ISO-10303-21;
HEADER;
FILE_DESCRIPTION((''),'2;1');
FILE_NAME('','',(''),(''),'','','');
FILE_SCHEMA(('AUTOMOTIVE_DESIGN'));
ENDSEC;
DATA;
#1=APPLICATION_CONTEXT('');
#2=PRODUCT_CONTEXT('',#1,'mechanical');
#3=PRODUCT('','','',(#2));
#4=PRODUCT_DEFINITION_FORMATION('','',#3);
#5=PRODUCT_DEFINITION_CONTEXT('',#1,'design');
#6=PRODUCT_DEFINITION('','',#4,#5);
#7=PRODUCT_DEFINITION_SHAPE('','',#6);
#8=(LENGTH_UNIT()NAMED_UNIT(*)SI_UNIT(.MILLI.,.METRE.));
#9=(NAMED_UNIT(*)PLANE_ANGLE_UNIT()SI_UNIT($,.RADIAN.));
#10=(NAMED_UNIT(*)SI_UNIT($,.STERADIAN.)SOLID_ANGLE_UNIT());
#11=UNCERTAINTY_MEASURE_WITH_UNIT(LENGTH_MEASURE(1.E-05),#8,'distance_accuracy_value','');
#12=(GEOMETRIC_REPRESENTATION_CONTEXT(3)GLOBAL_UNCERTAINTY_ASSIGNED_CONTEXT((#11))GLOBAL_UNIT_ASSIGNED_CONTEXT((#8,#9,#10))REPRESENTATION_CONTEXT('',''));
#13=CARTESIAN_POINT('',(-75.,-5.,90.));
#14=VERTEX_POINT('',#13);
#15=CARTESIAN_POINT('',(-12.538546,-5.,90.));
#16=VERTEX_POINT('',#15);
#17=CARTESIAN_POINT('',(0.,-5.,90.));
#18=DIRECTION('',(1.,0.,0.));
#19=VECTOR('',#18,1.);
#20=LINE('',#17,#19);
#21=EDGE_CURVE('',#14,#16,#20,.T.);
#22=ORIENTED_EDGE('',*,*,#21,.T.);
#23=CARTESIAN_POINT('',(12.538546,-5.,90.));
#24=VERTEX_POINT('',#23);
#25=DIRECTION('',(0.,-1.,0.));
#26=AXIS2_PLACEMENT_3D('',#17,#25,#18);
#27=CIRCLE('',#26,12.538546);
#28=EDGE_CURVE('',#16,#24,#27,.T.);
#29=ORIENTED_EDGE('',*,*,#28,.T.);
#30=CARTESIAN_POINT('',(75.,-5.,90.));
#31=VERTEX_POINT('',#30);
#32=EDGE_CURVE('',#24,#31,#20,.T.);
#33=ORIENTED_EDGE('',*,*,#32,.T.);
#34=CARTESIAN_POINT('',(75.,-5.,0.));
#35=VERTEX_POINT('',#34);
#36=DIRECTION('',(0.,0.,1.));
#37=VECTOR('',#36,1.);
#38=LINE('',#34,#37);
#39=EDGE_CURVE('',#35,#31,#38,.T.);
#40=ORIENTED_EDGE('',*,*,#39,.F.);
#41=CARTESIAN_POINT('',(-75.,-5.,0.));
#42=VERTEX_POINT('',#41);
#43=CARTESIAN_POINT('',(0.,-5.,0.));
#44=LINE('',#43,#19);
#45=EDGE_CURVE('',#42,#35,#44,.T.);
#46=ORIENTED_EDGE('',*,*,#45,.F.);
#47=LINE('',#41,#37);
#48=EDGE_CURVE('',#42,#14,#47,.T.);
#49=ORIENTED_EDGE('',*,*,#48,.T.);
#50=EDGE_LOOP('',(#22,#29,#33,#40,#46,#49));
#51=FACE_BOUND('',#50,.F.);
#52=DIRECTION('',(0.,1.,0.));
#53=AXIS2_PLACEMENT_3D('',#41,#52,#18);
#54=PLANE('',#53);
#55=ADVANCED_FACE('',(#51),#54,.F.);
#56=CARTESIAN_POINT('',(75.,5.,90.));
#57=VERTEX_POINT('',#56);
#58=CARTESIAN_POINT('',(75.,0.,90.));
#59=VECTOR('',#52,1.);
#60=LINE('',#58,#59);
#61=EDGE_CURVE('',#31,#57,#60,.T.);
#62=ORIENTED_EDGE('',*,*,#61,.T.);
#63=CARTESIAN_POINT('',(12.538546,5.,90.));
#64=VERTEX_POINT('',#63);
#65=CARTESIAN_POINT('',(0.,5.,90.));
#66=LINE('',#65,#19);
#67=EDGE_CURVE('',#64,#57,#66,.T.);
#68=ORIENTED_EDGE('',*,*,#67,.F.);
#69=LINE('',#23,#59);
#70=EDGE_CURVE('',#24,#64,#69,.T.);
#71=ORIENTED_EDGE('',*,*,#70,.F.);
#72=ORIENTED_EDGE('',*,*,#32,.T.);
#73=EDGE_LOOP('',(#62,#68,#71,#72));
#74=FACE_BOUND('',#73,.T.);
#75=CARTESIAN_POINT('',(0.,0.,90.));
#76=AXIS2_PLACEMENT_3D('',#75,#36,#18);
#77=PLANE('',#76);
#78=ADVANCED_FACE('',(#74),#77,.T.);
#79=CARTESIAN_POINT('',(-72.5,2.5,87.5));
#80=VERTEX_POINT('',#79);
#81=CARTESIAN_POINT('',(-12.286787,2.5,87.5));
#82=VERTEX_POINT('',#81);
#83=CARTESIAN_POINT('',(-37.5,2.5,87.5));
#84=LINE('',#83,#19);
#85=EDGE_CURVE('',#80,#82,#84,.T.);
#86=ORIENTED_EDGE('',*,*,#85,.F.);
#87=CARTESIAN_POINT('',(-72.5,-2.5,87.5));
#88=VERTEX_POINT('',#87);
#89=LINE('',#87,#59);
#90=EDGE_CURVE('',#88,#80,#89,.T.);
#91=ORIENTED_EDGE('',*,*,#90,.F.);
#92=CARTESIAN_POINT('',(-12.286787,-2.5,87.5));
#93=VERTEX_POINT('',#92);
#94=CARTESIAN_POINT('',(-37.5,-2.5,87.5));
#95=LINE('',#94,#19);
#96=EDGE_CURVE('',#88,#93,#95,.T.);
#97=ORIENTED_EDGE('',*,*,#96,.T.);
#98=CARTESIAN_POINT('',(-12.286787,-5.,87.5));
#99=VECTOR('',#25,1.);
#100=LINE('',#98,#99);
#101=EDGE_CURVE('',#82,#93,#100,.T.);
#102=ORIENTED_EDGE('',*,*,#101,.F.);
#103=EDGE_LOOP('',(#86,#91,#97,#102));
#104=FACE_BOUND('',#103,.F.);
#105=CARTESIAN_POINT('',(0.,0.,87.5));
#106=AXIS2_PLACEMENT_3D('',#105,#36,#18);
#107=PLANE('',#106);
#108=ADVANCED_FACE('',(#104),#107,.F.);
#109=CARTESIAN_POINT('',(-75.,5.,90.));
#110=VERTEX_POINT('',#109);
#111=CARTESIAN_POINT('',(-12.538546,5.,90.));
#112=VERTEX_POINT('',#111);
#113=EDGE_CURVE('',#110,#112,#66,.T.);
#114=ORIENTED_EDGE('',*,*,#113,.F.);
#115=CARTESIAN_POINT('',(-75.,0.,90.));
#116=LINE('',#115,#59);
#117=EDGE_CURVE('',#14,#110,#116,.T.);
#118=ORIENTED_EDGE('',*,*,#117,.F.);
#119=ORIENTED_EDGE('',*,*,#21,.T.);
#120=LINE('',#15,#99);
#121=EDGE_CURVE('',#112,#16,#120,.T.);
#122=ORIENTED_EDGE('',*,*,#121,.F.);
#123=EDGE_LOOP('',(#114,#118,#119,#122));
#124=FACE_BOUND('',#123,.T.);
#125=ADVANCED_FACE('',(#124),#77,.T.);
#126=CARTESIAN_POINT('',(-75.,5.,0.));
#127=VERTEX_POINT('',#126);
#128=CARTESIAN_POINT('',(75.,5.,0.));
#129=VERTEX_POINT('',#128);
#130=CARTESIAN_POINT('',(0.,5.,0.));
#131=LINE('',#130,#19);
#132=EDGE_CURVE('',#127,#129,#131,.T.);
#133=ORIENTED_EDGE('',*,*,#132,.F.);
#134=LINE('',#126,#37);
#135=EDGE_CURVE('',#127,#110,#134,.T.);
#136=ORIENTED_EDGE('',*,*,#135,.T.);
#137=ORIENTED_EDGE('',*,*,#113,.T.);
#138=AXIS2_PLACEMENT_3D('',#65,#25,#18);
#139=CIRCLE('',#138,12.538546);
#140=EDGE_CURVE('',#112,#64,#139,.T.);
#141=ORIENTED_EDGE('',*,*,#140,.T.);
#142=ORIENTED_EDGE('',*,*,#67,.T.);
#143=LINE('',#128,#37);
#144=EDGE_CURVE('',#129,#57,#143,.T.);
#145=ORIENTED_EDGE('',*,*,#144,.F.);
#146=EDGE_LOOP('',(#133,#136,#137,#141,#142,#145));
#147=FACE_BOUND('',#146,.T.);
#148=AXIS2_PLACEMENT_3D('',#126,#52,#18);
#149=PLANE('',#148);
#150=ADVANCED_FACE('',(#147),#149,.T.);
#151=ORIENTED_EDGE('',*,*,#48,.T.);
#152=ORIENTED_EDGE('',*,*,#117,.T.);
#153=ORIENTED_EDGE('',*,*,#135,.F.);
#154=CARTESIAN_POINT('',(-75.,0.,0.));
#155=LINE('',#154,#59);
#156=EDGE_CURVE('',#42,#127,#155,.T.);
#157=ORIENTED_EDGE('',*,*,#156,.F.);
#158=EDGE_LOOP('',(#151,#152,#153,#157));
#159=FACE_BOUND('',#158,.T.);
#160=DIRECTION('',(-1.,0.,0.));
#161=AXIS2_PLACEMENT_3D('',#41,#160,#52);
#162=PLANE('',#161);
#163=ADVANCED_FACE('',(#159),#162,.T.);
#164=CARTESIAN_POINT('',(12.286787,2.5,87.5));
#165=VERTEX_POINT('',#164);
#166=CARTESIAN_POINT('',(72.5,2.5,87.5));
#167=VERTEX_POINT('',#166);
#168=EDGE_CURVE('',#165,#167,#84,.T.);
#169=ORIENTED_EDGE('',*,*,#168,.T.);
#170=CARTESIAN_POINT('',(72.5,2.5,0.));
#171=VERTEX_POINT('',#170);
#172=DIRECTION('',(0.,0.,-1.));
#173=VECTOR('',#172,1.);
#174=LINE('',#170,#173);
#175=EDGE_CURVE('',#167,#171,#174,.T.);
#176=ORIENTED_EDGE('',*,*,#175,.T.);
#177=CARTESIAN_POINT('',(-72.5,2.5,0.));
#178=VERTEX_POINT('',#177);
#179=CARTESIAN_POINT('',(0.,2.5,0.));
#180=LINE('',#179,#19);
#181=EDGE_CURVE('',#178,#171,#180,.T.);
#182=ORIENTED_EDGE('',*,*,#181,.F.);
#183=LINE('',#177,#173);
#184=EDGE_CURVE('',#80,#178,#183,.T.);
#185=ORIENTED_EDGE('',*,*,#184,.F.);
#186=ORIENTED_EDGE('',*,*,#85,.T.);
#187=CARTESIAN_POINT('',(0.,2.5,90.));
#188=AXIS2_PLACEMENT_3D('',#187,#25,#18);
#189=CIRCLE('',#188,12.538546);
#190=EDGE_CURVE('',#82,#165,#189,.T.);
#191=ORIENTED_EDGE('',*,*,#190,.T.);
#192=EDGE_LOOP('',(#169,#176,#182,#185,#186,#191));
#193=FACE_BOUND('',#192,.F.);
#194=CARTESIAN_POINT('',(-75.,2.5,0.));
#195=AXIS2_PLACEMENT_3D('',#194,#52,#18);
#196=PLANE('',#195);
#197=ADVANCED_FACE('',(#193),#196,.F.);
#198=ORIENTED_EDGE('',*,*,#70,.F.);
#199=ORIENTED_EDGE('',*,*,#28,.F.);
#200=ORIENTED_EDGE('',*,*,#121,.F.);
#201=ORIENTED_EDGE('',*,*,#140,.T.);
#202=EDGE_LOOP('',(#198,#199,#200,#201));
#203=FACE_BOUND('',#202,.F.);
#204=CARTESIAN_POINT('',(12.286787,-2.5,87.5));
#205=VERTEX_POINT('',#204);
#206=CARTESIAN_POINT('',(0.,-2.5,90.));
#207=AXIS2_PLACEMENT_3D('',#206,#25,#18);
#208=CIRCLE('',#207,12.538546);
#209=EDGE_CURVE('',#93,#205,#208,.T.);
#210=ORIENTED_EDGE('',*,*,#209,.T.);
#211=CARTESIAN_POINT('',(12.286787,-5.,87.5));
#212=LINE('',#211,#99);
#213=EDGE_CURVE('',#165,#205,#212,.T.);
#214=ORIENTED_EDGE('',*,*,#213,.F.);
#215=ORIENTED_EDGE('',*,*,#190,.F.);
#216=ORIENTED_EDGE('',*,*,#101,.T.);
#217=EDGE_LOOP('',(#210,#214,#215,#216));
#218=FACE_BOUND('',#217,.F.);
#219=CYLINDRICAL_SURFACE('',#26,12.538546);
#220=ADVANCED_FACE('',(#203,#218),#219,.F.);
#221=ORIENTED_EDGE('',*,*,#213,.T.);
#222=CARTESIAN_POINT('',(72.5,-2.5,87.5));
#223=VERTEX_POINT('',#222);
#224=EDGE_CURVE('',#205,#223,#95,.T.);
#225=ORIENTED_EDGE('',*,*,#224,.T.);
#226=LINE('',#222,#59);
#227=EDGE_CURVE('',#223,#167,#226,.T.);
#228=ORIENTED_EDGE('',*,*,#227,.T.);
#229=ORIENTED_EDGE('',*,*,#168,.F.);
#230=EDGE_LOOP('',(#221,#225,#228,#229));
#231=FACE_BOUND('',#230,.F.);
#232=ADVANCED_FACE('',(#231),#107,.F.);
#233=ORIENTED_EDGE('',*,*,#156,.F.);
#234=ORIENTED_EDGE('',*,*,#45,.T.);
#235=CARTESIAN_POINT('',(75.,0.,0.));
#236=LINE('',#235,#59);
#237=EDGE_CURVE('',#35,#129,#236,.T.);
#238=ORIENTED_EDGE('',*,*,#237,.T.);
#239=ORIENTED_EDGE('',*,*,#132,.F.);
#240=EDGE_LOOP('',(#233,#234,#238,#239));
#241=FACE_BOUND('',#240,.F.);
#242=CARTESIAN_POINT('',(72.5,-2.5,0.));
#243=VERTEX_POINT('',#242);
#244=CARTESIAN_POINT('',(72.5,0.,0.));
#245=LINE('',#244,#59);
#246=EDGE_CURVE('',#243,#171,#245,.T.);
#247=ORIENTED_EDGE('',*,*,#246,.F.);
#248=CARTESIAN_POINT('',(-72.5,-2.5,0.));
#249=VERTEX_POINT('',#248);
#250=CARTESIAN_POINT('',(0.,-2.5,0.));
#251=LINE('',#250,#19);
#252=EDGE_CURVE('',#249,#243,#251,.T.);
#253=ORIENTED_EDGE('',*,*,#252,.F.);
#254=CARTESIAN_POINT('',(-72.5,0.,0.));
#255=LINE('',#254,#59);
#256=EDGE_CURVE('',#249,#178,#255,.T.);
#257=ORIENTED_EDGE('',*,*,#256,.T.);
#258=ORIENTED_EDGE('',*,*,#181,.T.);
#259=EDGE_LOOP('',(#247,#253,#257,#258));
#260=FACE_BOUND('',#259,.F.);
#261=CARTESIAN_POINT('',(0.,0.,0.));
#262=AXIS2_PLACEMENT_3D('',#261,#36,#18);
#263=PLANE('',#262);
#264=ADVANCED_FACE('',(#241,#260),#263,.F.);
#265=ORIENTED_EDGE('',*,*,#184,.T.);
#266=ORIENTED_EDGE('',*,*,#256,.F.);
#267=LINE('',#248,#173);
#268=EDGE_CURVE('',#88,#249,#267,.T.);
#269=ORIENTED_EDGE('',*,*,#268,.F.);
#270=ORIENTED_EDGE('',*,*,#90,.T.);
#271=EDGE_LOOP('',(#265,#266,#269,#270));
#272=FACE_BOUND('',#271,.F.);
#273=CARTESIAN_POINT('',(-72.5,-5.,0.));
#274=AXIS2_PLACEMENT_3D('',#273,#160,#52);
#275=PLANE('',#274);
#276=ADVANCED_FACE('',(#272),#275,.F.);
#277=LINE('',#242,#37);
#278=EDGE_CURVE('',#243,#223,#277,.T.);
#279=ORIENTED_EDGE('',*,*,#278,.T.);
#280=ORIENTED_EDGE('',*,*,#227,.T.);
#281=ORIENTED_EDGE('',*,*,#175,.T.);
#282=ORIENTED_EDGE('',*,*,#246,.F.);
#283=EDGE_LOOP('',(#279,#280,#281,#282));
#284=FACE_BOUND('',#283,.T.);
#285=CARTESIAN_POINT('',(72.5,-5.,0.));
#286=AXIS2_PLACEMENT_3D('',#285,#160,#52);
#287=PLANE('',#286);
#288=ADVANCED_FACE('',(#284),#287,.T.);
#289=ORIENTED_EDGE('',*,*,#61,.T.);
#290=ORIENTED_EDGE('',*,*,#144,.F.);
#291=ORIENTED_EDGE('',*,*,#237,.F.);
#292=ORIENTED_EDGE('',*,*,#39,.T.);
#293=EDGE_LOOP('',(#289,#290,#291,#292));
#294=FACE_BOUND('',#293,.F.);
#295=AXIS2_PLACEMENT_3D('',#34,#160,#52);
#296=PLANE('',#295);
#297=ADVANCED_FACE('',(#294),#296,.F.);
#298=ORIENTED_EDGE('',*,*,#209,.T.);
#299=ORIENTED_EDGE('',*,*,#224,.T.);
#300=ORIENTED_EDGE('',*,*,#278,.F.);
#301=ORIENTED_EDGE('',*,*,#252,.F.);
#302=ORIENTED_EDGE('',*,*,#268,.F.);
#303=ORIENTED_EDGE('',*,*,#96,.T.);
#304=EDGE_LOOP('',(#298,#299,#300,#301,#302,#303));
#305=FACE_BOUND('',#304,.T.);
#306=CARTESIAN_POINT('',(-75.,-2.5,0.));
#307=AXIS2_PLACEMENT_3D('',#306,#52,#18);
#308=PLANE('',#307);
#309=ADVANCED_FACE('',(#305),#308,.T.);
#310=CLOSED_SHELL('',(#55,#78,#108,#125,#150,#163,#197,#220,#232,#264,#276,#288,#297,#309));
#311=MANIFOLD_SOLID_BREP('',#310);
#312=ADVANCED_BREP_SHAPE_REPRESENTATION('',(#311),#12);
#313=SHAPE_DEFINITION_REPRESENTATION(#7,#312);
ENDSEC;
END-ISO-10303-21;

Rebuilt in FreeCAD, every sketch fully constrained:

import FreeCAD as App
import Part
import Sketcher

V = App.Vector
Q = App.Units.Quantity


def faces_at(feature, points):
    """Names of the faces that lie closest to the given points."""
    faces = feature.Shape.Faces
    near = lambda p: min(range(len(faces)), key=lambda i: faces[i].distToShape(Part.Vertex(*p))[0])
    return sorted({f"Face{near(p) + 1}" for p in points})

doc = App.newDocument("Part")
params = doc.addObject("Spreadsheet::Sheet", "Params")
for row, (alias, value) in enumerate([
    ("sketch1_width", "150 mm"),
    ("sketch1_height", "10 mm"),
    ("pad1_length", "90 mm"),
    ("thickness_wall", "2.5 mm"),
    ("pocket1_length", "25 mm"),
], start=1):
    params.set(f"A{row}", alias)
    params.set(f"B{row}", "=" + value)
    params.setAlias(f"B{row}", alias)

body = doc.addObject("PartDesign::Body", "Body")

sketch1 = doc.addObject("Sketcher::SketchObject", "Sketch")
body.addObject(sketch1)
sketch1.AttachmentSupport = (doc.XY_Plane, [""])
sketch1.MapMode = "FlatFace"
sketch1.addGeometry(Part.LineSegment(V(-75, 5, 0), V(-75, -5, 0)), False)
sketch1.addGeometry(Part.LineSegment(V(-75, -5, 0), V(75, -5, 0)), False)
sketch1.addGeometry(Part.LineSegment(V(75, -5, 0), V(75, 5, 0)), False)
sketch1.addGeometry(Part.LineSegment(V(75, 5, 0), V(-75, 5, 0)), False)
sketch1.addConstraint(Sketcher.Constraint("Coincident", 0, 2, 1, 1))
sketch1.addConstraint(Sketcher.Constraint("Coincident", 1, 2, 2, 1))
sketch1.addConstraint(Sketcher.Constraint("Coincident", 2, 2, 3, 1))
sketch1.addConstraint(Sketcher.Constraint("Coincident", 3, 2, 0, 1))
sketch1.addConstraint(Sketcher.Constraint("Vertical", 0))
sketch1.addConstraint(Sketcher.Constraint("Horizontal", 1))
sketch1.addConstraint(Sketcher.Constraint("Vertical", 2))
sketch1.addConstraint(Sketcher.Constraint("Horizontal", 3))
sketch1.addConstraint(Sketcher.Constraint("Symmetric", 0, 2, 2, 2, -1, 1))
sketch1.addConstraint(Sketcher.Constraint("DistanceX", 1, 1, 1, 2, Q("150 mm")))
sketch1.addConstraint(Sketcher.Constraint("DistanceY", 0, 2, 0, 1, Q("10 mm")))
sketch1.setExpression("Constraints[9]", "Params.sketch1_width")
sketch1.setExpression("Constraints[10]", "Params.sketch1_height")
pad1 = doc.addObject("PartDesign::Pad", "Pad")
body.addObject(pad1)
pad1.Profile = sketch1
pad1.setExpression("Length", "Params.pad1_length")
doc.recompute()

thickness = doc.addObject("PartDesign::Thickness", "Thickness")
body.addObject(thickness)
thickness.Base = (pad1, faces_at(pad1, [(0, 0, 0)]))
thickness.setExpression("Value", "Params.thickness_wall")
thickness.Reversed = True
thickness.Join = "Arc"

sketch2 = doc.addObject("Sketcher::SketchObject", "Sketch001")
body.addObject(sketch2)
sketch2.AttachmentSupport = (doc.XZ_Plane, [""])
sketch2.MapMode = "FlatFace"
sketch2.AttachmentOffset = App.Placement(V(0, 0, 5), App.Rotation())
sketch2.addGeometry(Part.Circle(V(0, 90, 0), V(0, 0, 1), 13), False)
sketch2.addConstraint(Sketcher.Constraint("PointOnObject", 0, 3, -2))
sketch2.addConstraint(Sketcher.Constraint("DistanceY", -1, 1, 0, 3, Q("90 mm")))
sketch2.addConstraint(Sketcher.Constraint("Diameter", 0, Q("25.077092 mm")))
pocket1 = doc.addObject("PartDesign::Pocket", "Pocket")
body.addObject(pocket1)
pocket1.Profile = sketch2
pocket1.setExpression("Length", "Params.pocket1_length")

doc.recompute()
